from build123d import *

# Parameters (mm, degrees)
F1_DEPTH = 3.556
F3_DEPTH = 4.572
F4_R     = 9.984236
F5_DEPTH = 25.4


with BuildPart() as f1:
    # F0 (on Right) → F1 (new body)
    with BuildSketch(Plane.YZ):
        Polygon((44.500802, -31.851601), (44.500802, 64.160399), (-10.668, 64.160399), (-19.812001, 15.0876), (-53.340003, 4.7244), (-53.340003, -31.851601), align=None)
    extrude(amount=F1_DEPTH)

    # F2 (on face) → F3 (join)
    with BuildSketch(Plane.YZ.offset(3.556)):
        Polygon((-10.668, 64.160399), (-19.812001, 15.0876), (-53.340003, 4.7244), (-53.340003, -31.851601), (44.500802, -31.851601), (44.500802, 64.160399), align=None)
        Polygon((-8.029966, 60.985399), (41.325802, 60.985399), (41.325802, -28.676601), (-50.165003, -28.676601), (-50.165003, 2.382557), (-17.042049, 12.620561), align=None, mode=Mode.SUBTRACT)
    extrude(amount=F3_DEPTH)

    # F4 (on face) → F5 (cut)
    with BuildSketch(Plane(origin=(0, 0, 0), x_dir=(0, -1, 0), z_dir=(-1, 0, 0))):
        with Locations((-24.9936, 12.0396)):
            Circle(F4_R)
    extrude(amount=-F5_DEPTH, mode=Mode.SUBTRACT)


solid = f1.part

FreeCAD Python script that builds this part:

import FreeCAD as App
import Part
import Sketcher
Q = App.Units.Quantity


def add_polygon(sketch, points):
    """Adds a closed chain of lines whose ends are joined by coincident constraints."""
    first, n = sketch.GeometryCount, len(points)
    for a, b in zip(points, points[1:] + points[:1]):
        sketch.addGeometry(Part.LineSegment(App.Vector(*a, 0), App.Vector(*b, 0)), False)
    for i in range(n):
        sketch.addConstraint(Sketcher.Constraint("Coincident", first + i, 2, first + (i + 1) % n, 1))

doc = App.newDocument("Part")
params = doc.addObject("Spreadsheet::Sheet", "Params")
for row, (alias, value) in enumerate([
    ("sketch1_height", "3.78 in"),
    ("sketch1_height2", "1.44 in"),
    ("sketch1_width", "2.1720001 in"),
    ("sketch1_width2", "3.8520002 in"),
    ("pad1_length", "0.14 in"),
    ("sketch2_height", "1.44 in"),
    ("sketch2_height2", "3.78 in"),
    ("sketch2_height3", "3.53 in"),
    ("sketch2_width", "3.8520002 in"),
    ("sketch2_width2", "2.1720001 in"),
    ("pad2_length", "0.18 in"),
    ("pocket1_length", "1 in"),
], start=1):
    params.set(f"A{row}", alias)
    params.set(f"B{row}", "=" + value)
    params.setAlias(f"B{row}", alias)

body = doc.addObject("PartDesign::Body", "Body")

# Sketch on YZ plane
sketch1 = doc.addObject("Sketcher::SketchObject", "Sketch")
body.addObject(sketch1)
sketch1.AttachmentSupport = (doc.YZ_Plane, [""])
sketch1.MapMode = "FlatFace"
add_polygon(sketch1, [(45, -32), (45, 64), (-11, 64), (-20, 15), (-53, 5), (-53, -32)])  # lines 0-5
sketch1.addConstraint(Sketcher.Constraint("Vertical", 0))
sketch1.addConstraint(Sketcher.Constraint("Horizontal", 1))
sketch1.addConstraint(Sketcher.Constraint("Vertical", 4))
sketch1.addConstraint(Sketcher.Constraint("Horizontal", 5))
sketch1.addConstraint(Sketcher.Constraint("DistanceY", 0, 1, 0, 2, Q("3.78 in")))
sketch1.addConstraint(Sketcher.Constraint("DistanceY", 4, 2, 4, 1, Q("1.44 in")))
sketch1.addConstraint(Sketcher.Constraint("DistanceX", 3, 2, -1, 1, Q("2.1000001 in")))
sketch1.addConstraint(Sketcher.Constraint("DistanceX", 1, 2, 1, 1, Q("2.1720001 in")))
sketch1.addConstraint(Sketcher.Constraint("DistanceX", 5, 1, 5, 2, Q("3.8520002 in")))
sketch1.addConstraint(Sketcher.Constraint("DistanceX", 2, 2, -1, 1, Q("0.78 in")))
sketch1.addConstraint(Sketcher.Constraint("DistanceY", -1, 1, 0, 2, Q("2.526 in")))
sketch1.addConstraint(Sketcher.Constraint("DistanceY", -1, 1, 2, 2, Q("0.594 in")))
sketch1.setExpression("Constraints[10]", "Params.sketch1_height")
sketch1.setExpression("Constraints[11]", "Params.sketch1_height2")
sketch1.setExpression("Constraints[13]", "Params.sketch1_width")
sketch1.setExpression("Constraints[14]", "Params.sketch1_width2")
pad1 = doc.addObject("PartDesign::Pad", "Pad")
body.addObject(pad1)
pad1.Profile = sketch1
pad1.setExpression("Length", "Params.pad1_length")

# Sketch on YZ plane
sketch2 = doc.addObject("Sketcher::SketchObject", "Sketch001")
body.addObject(sketch2)
sketch2.AttachmentSupport = (doc.YZ_Plane, [""])
sketch2.MapMode = "FlatFace"
sketch2.AttachmentOffset = App.Placement(App.Vector(0, 0, 0.14 * 25.4), App.Rotation())
add_polygon(sketch2, [(-11, 64), (-20, 15), (-53, 5), (-53, -32), (45, -32), (45, 64)])  # lines 0-5
add_polygon(sketch2, [(-17, 13), (-8, 61), (41, 61), (41, -29), (-50, -29), (-50, 2)])  # lines 6-11
sketch2.addConstraint(Sketcher.Constraint("Vertical", 2))
sketch2.addConstraint(Sketcher.Constraint("Horizontal", 3))
sketch2.addConstraint(Sketcher.Constraint("Vertical", 4))
sketch2.addConstraint(Sketcher.Constraint("Horizontal", 5))
sketch2.addConstraint(Sketcher.Constraint("Horizontal", 7))
sketch2.addConstraint(Sketcher.Constraint("Vertical", 8))
sketch2.addConstraint(Sketcher.Constraint("Horizontal", 9))
sketch2.addConstraint(Sketcher.Constraint("Vertical", 10))
sketch2.addConstraint(Sketcher.Constraint("Parallel", 0, 6))
sketch2.addConstraint(Sketcher.Constraint("Parallel", 1, 11))
sketch2.addConstraint(Sketcher.Constraint("DistanceY", 2, 2, 2, 1, Q("1.44 in")))
sketch2.addConstraint(Sketcher.Constraint("DistanceY", 4, 1, 4, 2, Q("3.78 in")))
sketch2.addConstraint(Sketcher.Constraint("DistanceY", 8, 2, 8, 1, Q("3.53 in")))
sketch2.addConstraint(Sketcher.Constraint("DistanceX", 1, 2, -1, 1, Q("2.1000001 in")))
sketch2.addConstraint(Sketcher.Constraint("DistanceX", 3, 1, 3, 2, Q("3.8520002 in")))
sketch2.addConstraint(Sketcher.Constraint("DistanceX", 5, 2, 5, 1, Q("2.1720001 in")))
sketch2.addConstraint(Sketcher.Constraint("DistanceX", 9, 2, 9, 1, Q("3.6020002 in")))
sketch2.addConstraint(Sketcher.Constraint("DistanceX", 0, 2, -1, 1, Q("0.78 in")))
sketch2.addConstraint(Sketcher.Constraint("DistanceY", -1, 1, 0, 2, Q("0.594 in")))
sketch2.addConstraint(Sketcher.Constraint("DistanceY", -1, 1, 1, 2, Q("0.186 in")))
sketch2.addConstraint(Sketcher.Constraint("DistanceY", -1, 1, 6, 2, Q("2.401 in")))
sketch2.addConstraint(Sketcher.Constraint("DistanceX", -1, 1, 7, 2, Q("1.6270001 in")))
sketch2.addConstraint(Sketcher.Constraint("DistanceX", 7, 1, 7, 2, Q("49.355768 mm")))
sketch2.addConstraint(Sketcher.Constraint("DistanceY", 10, 1, 10, 2, Q("31.059158 mm")))
sketch2.setExpression("Constraints[22]", "Params.sketch2_height")
sketch2.setExpression("Constraints[23]", "Params.sketch2_height2")
sketch2.setExpression("Constraints[24]", "Params.sketch2_height3")
sketch2.setExpression("Constraints[26]", "Params.sketch2_width")
sketch2.setExpression("Constraints[27]", "Params.sketch2_width2")
pad2 = doc.addObject("PartDesign::Pad", "Pad001")
body.addObject(pad2)
pad2.Profile = sketch2
pad2.setExpression("Length", "Params.pad2_length")

# Sketch on YZ plane
sketch3 = doc.addObject("Sketcher::SketchObject", "Sketch002")
body.addObject(sketch3)
sketch3.AttachmentSupport = (doc.YZ_Plane, [""])
sketch3.MapMode = "FlatFace"
sketch3.addGeometry(Part.Circle(App.Vector(25, 12, 0), App.Vector(0, 0, 1), 10), False)
sketch3.addConstraint(Sketcher.Constraint("Diameter", 0, Q("19.968472 mm")))
sketch3.addConstraint(Sketcher.Constraint("DistanceX", -1, 1, 0, 3, Q("0.984 in")))
sketch3.addConstraint(Sketcher.Constraint("DistanceY", -1, 1, 0, 3, Q("0.474 in")))
pocket1 = doc.addObject("PartDesign::Pocket", "Pocket")
body.addObject(pocket1)
pocket1.Profile = sketch3
pocket1.setExpression("Length", "Params.pocket1_length")
pocket1.Reversed = True

doc.recompute()
